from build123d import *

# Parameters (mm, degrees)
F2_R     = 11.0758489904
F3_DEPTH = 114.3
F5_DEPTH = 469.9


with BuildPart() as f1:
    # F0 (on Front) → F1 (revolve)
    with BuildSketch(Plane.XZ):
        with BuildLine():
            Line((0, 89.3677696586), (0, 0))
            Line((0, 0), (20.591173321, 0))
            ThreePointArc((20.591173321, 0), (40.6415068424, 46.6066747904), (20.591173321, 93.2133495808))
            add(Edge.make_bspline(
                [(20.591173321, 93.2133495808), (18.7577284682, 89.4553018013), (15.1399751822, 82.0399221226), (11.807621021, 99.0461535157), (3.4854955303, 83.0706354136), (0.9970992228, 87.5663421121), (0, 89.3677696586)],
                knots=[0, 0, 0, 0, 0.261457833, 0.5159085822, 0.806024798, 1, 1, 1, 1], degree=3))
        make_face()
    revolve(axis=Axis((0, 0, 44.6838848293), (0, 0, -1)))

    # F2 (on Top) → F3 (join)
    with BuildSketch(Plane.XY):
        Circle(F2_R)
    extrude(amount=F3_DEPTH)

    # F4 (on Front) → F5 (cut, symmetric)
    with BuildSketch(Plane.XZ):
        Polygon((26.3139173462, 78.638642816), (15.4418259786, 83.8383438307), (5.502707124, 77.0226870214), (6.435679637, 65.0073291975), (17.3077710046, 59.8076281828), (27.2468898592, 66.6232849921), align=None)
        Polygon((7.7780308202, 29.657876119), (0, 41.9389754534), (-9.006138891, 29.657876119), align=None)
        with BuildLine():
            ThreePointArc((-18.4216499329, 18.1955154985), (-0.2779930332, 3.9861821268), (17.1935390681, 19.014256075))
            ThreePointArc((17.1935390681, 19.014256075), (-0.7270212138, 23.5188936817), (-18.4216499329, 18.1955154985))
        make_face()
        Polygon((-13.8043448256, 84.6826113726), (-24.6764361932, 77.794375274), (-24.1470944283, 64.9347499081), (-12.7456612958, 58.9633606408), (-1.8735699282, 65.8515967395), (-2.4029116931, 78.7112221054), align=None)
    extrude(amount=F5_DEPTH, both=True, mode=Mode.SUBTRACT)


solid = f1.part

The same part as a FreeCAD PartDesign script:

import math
import FreeCAD as App
import Part
import Sketcher

V = App.Vector
Q = App.Units.Quantity


def add_polygon(sketch, points):
    """Adds a closed chain of lines whose ends are joined by coincident constraints."""
    first, n = sketch.GeometryCount, len(points)
    for a, b in zip(points, points[1:] + points[:1]):
        sketch.addGeometry(Part.LineSegment(App.Vector(*a, 0), App.Vector(*b, 0)), False)
    for i in range(n):
        sketch.addConstraint(Sketcher.Constraint("Coincident", first + i, 2, first + (i + 1) % n, 1))

doc = App.newDocument("Part")
body = doc.addObject("PartDesign::Body", "Body")

# Sketch on XZ plane
sketch1 = body.newObject("Sketcher::SketchObject", "Sketch")
sketch1.AttachmentSupport = (doc.getObject("XZ_Plane"), [""])
sketch1.MapMode = "FlatFace"
sketch1.addGeometry([
    Part.LineSegment(V(0, 89.36777, 0), V(0, 0, 0)),
    Part.LineSegment(V(0, 0, 0), V(20.591173, 0, 0)),
    Part.ArcOfCircle(Part.Circle(V(-23.551889, 46.606675, 0), V(0, 0, 1), 64.193396), math.radians(-46.555045), math.radians(46.555045)),
    Part.BSplineCurve([V(20.591173, 93.21335, 0), V(18.757728, 89.455302, 0), V(15.139975, 82.039922, 0), V(11.807621, 99.046154, 0), V(3.485496, 83.070635, 0), V(0.997099, 87.566342, 0), V(0, 89.36777, 0)], [4, 1, 1, 1, 4], [0, 0.261457833, 0.515908582, 0.806024798, 1], False, 3, [1, 1, 1, 1, 1, 1, 1], False),
], False)
sketch1.addConstraint([
    Sketcher.Constraint("Block", 3),
    Sketcher.Constraint("Coincident", 0, 2, 1, 1),
    Sketcher.Constraint("Coincident", 1, 2, 2, 1),
    Sketcher.Constraint("Coincident", 2, 2, 3, 1),
    Sketcher.Constraint("Coincident", 3, 2, 0, 1),
    Sketcher.Constraint("Vertical", 0),
    Sketcher.Constraint("Horizontal", 1),
    Sketcher.Constraint("PointOnObject", 1, 2, -1),
    Sketcher.Constraint("Vertical", 1, 2, 2, 2),
    Sketcher.Constraint("Radius", 2, 64.193396),
])
revolution = body.newObject("PartDesign::Revolution", "Revolution")
revolution.Profile = sketch1
revolution.ReferenceAxis = (sketch1, ["V_Axis"])
revolution.Angle = 360

# Sketch on XY plane
sketch2 = body.newObject("Sketcher::SketchObject", "Sketch001")
sketch2.AttachmentSupport = (doc.getObject("XY_Plane"), [""])
sketch2.MapMode = "FlatFace"
sketch2.addGeometry(Part.Circle(V(0, 0, 0), V(0, 0, 1), 11), False)
sketch2.addConstraint([
    Sketcher.Constraint("Coincident", 0, 3, -1, 1),
    Sketcher.Constraint("Diameter", 0, 22.151698),
])
pad1 = body.newObject("PartDesign::Pad", "Pad")
pad1.Profile = sketch2
pad1.Length = Q("4.5 in")

# Sketch on XZ plane
sketch3 = body.newObject("Sketcher::SketchObject", "Sketch002")
sketch3.AttachmentSupport = (doc.getObject("XZ_Plane"), [""])
sketch3.MapMode = "FlatFace"
add_polygon(sketch3, [(26, 79), (15, 84), (6, 77), (6, 65), (17, 60), (27, 67)])  # lines 0-5
add_polygon(sketch3, [(8, 30), (0, 42), (-9, 30)])  # lines 6-8
sketch3.addGeometry(Part.ArcOfCircle(Part.Circle(V(-1, 22, 0), V(0, 0, 1), 18), math.radians(-167), math.radians(-10)), False)  # 9
sketch3.addGeometry(Part.ArcOfCircle(Part.Circle(V(0, -11, 0), V(0, 0, 1), 35), math.radians(60), math.radians(122)), False)  # 10
add_polygon(sketch3, [(-14, 85), (-25, 78), (-24, 65), (-13, 59), (-2, 66), (-2, 79)])  # lines 11-16
sketch3.addConstraint([
    Sketcher.Constraint("Coincident", 9, 1, 10, 2),
    Sketcher.Constraint("Coincident", 10, 1, 9, 2),
    Sketcher.Constraint("Horizontal", 8),
    Sketcher.Constraint("PointOnObject", 6, 2, -2),
    Sketcher.Constraint("Parallel", 0, 3),
    Sketcher.Constraint("Parallel", 1, 4),
    Sketcher.Constraint("Parallel", 2, 5),
    Sketcher.Constraint("Parallel", 11, 14),
    Sketcher.Constraint("Parallel", 12, 15),
    Sketcher.Constraint("Parallel", 13, 16),
    Sketcher.Constraint("Equal", 0, 1),
    Sketcher.Constraint("Equal", 1, 2),
    Sketcher.Constraint("Equal", 2, 3),
    Sketcher.Constraint("Equal", 11, 12),
    Sketcher.Constraint("Equal", 12, 13),
    Sketcher.Constraint("Equal", 13, 14),
    Sketcher.Constraint("Angle", 0, Q("154.440013 deg")),
    Sketcher.Constraint("Angle", 1, Q("-145.559987 deg")),
    Sketcher.Constraint("Angle", 2, Q("-85.559987 deg")),
    Sketcher.Constraint("Radius", 9, 18.1602),
    Sketcher.Constraint("Radius", 10, 34.732144),
    Sketcher.Constraint("DistanceX", 8, 1, 8, 2, 16.78417),
    Sketcher.Constraint("DistanceY", 9, 3, 1, 2, 54.881102),
    Sketcher.Constraint("DistanceX", 10, 3, 1, 2, 5.431499),
    Sketcher.Constraint("DistanceY", 3, 2, 2, 2, 5.199701),
    Sketcher.Constraint("DistanceY", 7, 2, 6, 2, 12.281099),
    Sketcher.Constraint("DistanceY", 6, 2, 11, 2, 35.8554),
    Sketcher.Constraint("DistanceX", 12, 2, 1, 2, 29.649802),
    Sketcher.Constraint("Distance", 6, 14.536959),
    Sketcher.Constraint("DistanceX", 9, 3, -1, 1, 0.695359),
    Sketcher.Constraint("DistanceX", -1, 1, 10, 3, 0.071209),
    Sketcher.Constraint("DistanceY", -1, 1, 2, 2, 65.007329),
    Sketcher.Constraint("DistanceX", 9, 1, -1, 1, 18.42165),
    Sketcher.Constraint("DistanceY", -1, 1, 12, 2, 64.93475),
    Sketcher.Constraint("DistanceX", 13, 2, -1, 1, 12.745661),
    Sketcher.Constraint("DistanceY", -1, 1, 13, 2, 58.963361),
    Sketcher.Constraint("DistanceX", 14, 2, -1, 1, 1.87357),
    Sketcher.Constraint("DistanceX", 15, 2, -1, 1, 2.402912),
])
pocket1 = body.newObject("PartDesign::Pocket", "Pocket")
pocket1.Profile = sketch3
pocket1.Length = Q("37 in")
pocket1.Midplane = True

doc.recompute()
